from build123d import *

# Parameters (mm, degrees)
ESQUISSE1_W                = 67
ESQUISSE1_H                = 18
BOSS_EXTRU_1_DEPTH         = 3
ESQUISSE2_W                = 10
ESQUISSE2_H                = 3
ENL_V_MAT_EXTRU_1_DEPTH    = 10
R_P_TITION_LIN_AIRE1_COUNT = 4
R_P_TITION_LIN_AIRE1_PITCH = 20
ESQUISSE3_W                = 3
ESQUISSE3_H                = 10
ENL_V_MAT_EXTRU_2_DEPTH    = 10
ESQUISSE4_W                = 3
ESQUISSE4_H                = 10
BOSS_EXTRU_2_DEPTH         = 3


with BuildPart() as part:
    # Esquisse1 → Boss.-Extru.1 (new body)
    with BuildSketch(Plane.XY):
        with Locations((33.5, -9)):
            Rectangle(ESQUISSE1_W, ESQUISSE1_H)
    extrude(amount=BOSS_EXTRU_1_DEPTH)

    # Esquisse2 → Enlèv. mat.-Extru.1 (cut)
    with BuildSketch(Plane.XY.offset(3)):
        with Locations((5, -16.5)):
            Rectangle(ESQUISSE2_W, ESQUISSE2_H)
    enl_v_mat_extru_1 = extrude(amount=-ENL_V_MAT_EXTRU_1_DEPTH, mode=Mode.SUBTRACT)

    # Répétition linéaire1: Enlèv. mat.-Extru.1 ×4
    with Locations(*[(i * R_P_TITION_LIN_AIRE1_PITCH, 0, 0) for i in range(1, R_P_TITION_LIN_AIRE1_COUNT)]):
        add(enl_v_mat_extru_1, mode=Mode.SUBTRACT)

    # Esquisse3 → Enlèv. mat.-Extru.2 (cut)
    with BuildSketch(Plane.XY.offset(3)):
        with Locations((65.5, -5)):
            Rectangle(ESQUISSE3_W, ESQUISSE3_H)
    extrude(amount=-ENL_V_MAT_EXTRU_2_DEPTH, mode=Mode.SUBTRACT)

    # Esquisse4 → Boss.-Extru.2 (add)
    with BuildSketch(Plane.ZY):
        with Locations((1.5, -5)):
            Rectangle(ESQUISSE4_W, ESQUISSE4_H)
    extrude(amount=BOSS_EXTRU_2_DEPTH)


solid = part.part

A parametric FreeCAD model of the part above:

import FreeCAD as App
import Part
import Sketcher

V = App.Vector

doc = App.newDocument("Part")
body = doc.addObject("PartDesign::Body", "Body")

# Sketch on XY plane
sketch1 = body.newObject("Sketcher::SketchObject", "Sketch")
sketch1.AttachmentSupport = (doc.getObject("XY_Plane"), [""])
sketch1.MapMode = "FlatFace"
sketch1.addGeometry(Part.LineSegment(V(0, 0, 0), V(0, -18, 0)), False)
sketch1.addGeometry(Part.LineSegment(V(0, -18, 0), V(67, -18, 0)), False)
sketch1.addGeometry(Part.LineSegment(V(67, -18, 0), V(67, 0, 0)), False)
sketch1.addGeometry(Part.LineSegment(V(67, 0, 0), V(0, 0, 0)), False)
sketch1.addConstraint(Sketcher.Constraint("Coincident", 0, 2, 1, 1))
sketch1.addConstraint(Sketcher.Constraint("Coincident", 1, 2, 2, 1))
sketch1.addConstraint(Sketcher.Constraint("Coincident", 2, 2, 3, 1))
sketch1.addConstraint(Sketcher.Constraint("Coincident", 3, 2, 0, 1))
sketch1.addConstraint(Sketcher.Constraint("Vertical", 0))
sketch1.addConstraint(Sketcher.Constraint("Horizontal", 1))
sketch1.addConstraint(Sketcher.Constraint("Vertical", 2))
sketch1.addConstraint(Sketcher.Constraint("Horizontal", 3))
sketch1.addConstraint(Sketcher.Constraint("Coincident", 3, 2, -1, 1))
sketch1.addConstraint(Sketcher.Constraint("DistanceX", 1, 1, 1, 2, 67.0))
sketch1.addConstraint(Sketcher.Constraint("DistanceY", 0, 2, 0, 1, 18.0))
pad1 = body.newObject("PartDesign::Pad", "Pad")
pad1.Profile = sketch1
pad1.Length = 3

# Sketch on XY plane
sketch2 = body.newObject("Sketcher::SketchObject", "Sketch001")
sketch2.AttachmentSupport = (doc.getObject("XY_Plane"), [""])
sketch2.MapMode = "FlatFace"
sketch2.AttachmentOffset = App.Placement(V(0, 0, 3), App.Rotation())
sketch2.addGeometry(Part.LineSegment(V(0, -15, 0), V(0, -18, 0)), False)
sketch2.addGeometry(Part.LineSegment(V(0, -18, 0), V(10, -18, 0)), False)
sketch2.addGeometry(Part.LineSegment(V(10, -18, 0), V(10, -15, 0)), False)
sketch2.addGeometry(Part.LineSegment(V(10, -15, 0), V(0, -15, 0)), False)
sketch2.addConstraint(Sketcher.Constraint("Coincident", 0, 2, 1, 1))
sketch2.addConstraint(Sketcher.Constraint("Coincident", 1, 2, 2, 1))
sketch2.addConstraint(Sketcher.Constraint("Coincident", 2, 2, 3, 1))
sketch2.addConstraint(Sketcher.Constraint("Coincident", 3, 2, 0, 1))
sketch2.addConstraint(Sketcher.Constraint("Vertical", 0))
sketch2.addConstraint(Sketcher.Constraint("Horizontal", 1))
sketch2.addConstraint(Sketcher.Constraint("Vertical", 2))
sketch2.addConstraint(Sketcher.Constraint("Horizontal", 3))
sketch2.addConstraint(Sketcher.Constraint("PointOnObject", 0, 2, -2))
sketch2.addConstraint(Sketcher.Constraint("DistanceX", 1, 1, 1, 2, 10.0))
sketch2.addConstraint(Sketcher.Constraint("DistanceY", 0, 2, 0, 1, 3.0))
sketch2.addConstraint(Sketcher.Constraint("DistanceY", 0, 2, -1, 1, 18.0))
pocket1 = body.newObject("PartDesign::Pocket", "Pocket")
pocket1.Profile = sketch2
pocket1.Length = 10
doc.recompute()

linearpattern = body.newObject("PartDesign::LinearPattern", "LinearPattern")
linearpattern.Originals = [pocket1]
linearpattern.Direction = (doc.getObject("X_Axis"), [""])
linearpattern.Mode = "offset"
linearpattern.Offset = 20
linearpattern.Occurrences = 4
body.Tip = linearpattern

# Sketch on XY plane
sketch3 = body.newObject("Sketcher::SketchObject", "Sketch002")
sketch3.AttachmentSupport = (doc.getObject("XY_Plane"), [""])
sketch3.MapMode = "FlatFace"
sketch3.AttachmentOffset = App.Placement(V(0, 0, 3), App.Rotation())
sketch3.addGeometry(Part.LineSegment(V(64, 0, 0), V(64, -10, 0)), False)
sketch3.addGeometry(Part.LineSegment(V(64, -10, 0), V(67, -10, 0)), False)
sketch3.addGeometry(Part.LineSegment(V(67, -10, 0), V(67, 0, 0)), False)
sketch3.addGeometry(Part.LineSegment(V(67, 0, 0), V(64, 0, 0)), False)
sketch3.addConstraint(Sketcher.Constraint("Coincident", 0, 2, 1, 1))
sketch3.addConstraint(Sketcher.Constraint("Coincident", 1, 2, 2, 1))
sketch3.addConstraint(Sketcher.Constraint("Coincident", 2, 2, 3, 1))
sketch3.addConstraint(Sketcher.Constraint("Coincident", 3, 2, 0, 1))
sketch3.addConstraint(Sketcher.Constraint("Vertical", 0))
sketch3.addConstraint(Sketcher.Constraint("Horizontal", 1))
sketch3.addConstraint(Sketcher.Constraint("Vertical", 2))
sketch3.addConstraint(Sketcher.Constraint("Horizontal", 3))
sketch3.addConstraint(Sketcher.Constraint("PointOnObject", 2, 2, -1))
sketch3.addConstraint(Sketcher.Constraint("DistanceX", 1, 1, 1, 2, 3.0))
sketch3.addConstraint(Sketcher.Constraint("DistanceY", 0, 2, 0, 1, 10.0))
sketch3.addConstraint(Sketcher.Constraint("DistanceX", -1, 1, 0, 2, 64.0))
pocket2 = body.newObject("PartDesign::Pocket", "Pocket001")
pocket2.Profile = sketch3
pocket2.Length = 10

# Sketch on YZ plane
sketch4 = body.newObject("Sketcher::SketchObject", "Sketch003")
sketch4.AttachmentSupport = (doc.getObject("YZ_Plane"), [""])
sketch4.MapMode = "FlatFace"
sketch4.addGeometry(Part.LineSegment(V(0, 0, 0), V(-10, 0, 0)), False)
sketch4.addGeometry(Part.LineSegment(V(-10, 0, 0), V(-10, 3, 0)), False)
sketch4.addGeometry(Part.LineSegment(V(-10, 3, 0), V(0, 3, 0)), False)
sketch4.addGeometry(Part.LineSegment(V(0, 3, 0), V(0, 0, 0)), False)
sketch4.addConstraint(Sketcher.Constraint("Coincident", 0, 2, 1, 1))
sketch4.addConstraint(Sketcher.Constraint("Coincident", 1, 2, 2, 1))
sketch4.addConstraint(Sketcher.Constraint("Coincident", 2, 2, 3, 1))
sketch4.addConstraint(Sketcher.Constraint("Coincident", 3, 2, 0, 1))
sketch4.addConstraint(Sketcher.Constraint("Horizontal", 0))
sketch4.addConstraint(Sketcher.Constraint("Vertical", 1))
sketch4.addConstraint(Sketcher.Constraint("Horizontal", 2))
sketch4.addConstraint(Sketcher.Constraint("Vertical", 3))
sketch4.addConstraint(Sketcher.Constraint("Coincident", 3, 2, -1, 1))
sketch4.addConstraint(Sketcher.Constraint("DistanceX", 0, 2, 0, 1, 10.0))
sketch4.addConstraint(Sketcher.Constraint("DistanceY", 1, 1, 1, 2, 3.0))
pad2 = body.newObject("PartDesign::Pad", "Pad001")
pad2.Profile = sketch4
pad2.Length = 3
pad2.Reversed = True

doc.recompute()
